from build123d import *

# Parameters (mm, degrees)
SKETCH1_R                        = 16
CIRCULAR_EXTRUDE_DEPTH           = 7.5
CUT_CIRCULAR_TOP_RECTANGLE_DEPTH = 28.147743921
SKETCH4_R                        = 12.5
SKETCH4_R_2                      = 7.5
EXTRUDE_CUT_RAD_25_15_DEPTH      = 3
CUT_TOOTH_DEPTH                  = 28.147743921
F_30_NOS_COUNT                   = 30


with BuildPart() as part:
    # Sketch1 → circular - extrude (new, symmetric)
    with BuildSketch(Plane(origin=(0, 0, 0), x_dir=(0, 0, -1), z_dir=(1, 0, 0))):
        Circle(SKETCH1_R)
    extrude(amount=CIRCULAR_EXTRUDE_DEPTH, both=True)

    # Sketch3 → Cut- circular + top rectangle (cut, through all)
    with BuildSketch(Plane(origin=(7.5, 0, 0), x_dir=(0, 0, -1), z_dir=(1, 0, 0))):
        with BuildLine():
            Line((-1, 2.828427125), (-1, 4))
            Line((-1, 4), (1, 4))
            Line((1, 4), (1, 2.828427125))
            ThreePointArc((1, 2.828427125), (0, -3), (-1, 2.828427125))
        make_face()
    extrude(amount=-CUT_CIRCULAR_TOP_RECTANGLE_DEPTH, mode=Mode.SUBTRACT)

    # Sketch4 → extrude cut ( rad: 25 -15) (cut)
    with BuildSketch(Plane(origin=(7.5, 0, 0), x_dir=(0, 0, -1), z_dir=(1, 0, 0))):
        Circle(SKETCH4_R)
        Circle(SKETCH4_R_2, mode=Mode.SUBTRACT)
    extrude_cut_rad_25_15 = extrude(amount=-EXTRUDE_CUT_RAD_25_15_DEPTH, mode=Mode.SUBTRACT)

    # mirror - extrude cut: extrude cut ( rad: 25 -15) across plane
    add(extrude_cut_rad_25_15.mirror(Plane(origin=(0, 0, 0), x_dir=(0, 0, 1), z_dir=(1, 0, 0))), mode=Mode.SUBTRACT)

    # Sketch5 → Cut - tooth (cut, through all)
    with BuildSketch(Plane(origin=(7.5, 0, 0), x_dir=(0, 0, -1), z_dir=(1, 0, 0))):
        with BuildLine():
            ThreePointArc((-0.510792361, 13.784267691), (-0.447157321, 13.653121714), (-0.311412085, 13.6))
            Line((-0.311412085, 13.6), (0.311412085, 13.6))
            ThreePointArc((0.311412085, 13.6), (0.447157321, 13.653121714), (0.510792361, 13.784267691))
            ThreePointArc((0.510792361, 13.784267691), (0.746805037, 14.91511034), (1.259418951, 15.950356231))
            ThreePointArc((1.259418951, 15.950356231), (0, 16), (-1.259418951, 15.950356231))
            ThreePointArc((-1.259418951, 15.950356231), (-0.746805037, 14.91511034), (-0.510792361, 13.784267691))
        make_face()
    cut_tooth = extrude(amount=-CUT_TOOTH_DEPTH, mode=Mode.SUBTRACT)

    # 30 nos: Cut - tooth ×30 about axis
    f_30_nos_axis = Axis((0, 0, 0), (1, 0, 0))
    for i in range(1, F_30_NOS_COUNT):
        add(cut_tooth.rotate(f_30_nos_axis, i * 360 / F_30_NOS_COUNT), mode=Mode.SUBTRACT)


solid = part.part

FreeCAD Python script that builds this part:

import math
import FreeCAD as App
import Part
import Sketcher

V = App.Vector
Q = App.Units.Quantity

doc = App.newDocument("Part")
body = doc.addObject("PartDesign::Body", "Body")

# Sketch on YZ plane
sketch1 = doc.addObject("Sketcher::SketchObject", "Sketch")
body.addObject(sketch1)
sketch1.AttachmentSupport = (doc.YZ_Plane, [""])
sketch1.MapMode = "FlatFace"
sketch1.addGeometry(Part.Circle(V(0, 0, 0), V(0, 0, 1), 16), False)
sketch1.addConstraint(Sketcher.Constraint("Coincident", 0, 3, -1, 1))
sketch1.addConstraint(Sketcher.Constraint("Diameter", 0, Q("32 mm")))
pad1 = doc.addObject("PartDesign::Pad", "Pad")
body.addObject(pad1)
pad1.Profile = sketch1
pad1.Length = 15
pad1.Midplane = True

# Sketch on YZ plane
sketch2 = doc.addObject("Sketcher::SketchObject", "Sketch001")
body.addObject(sketch2)
sketch2.AttachmentSupport = (doc.YZ_Plane, [""])
sketch2.MapMode = "FlatFace"
sketch2.AttachmentOffset = App.Placement(V(0, 0, 7.5), App.Rotation())
sketch2.addGeometry(Part.LineSegment(V(4, 1, 0), V(2.828427, 1, 0)), False)
sketch2.addGeometry(Part.ArcOfCircle(Part.Circle(V(0, 0, 0), V(0, 0, 1), 3), math.radians(19.471221), math.radians(340.528779)), False)
sketch2.addGeometry(Part.LineSegment(V(2.828427, -1, 0), V(4, -1, 0)), False)
sketch2.addGeometry(Part.LineSegment(V(4, -1, 0), V(4, 1, 0)), False)
sketch2.addConstraint(Sketcher.Constraint("Coincident", 0, 2, 1, 1))
sketch2.addConstraint(Sketcher.Constraint("Coincident", 1, 2, 2, 1))
sketch2.addConstraint(Sketcher.Constraint("Coincident", 2, 2, 3, 1))
sketch2.addConstraint(Sketcher.Constraint("Coincident", 3, 2, 0, 1))
sketch2.addConstraint(Sketcher.Constraint("Horizontal", 0))
sketch2.addConstraint(Sketcher.Constraint("Horizontal", 2))
sketch2.addConstraint(Sketcher.Constraint("Vertical", 3))
sketch2.addConstraint(Sketcher.Constraint("Coincident", 1, 3, -1, 1))
sketch2.addConstraint(Sketcher.Constraint("Vertical", 0, 2, 1, 2))
sketch2.addConstraint(Sketcher.Constraint("Radius", 1, Q("3 mm")))
sketch2.addConstraint(Sketcher.Constraint("DistanceY", 3, 1, 3, 2, Q("2 mm")))
sketch2.addConstraint(Sketcher.Constraint("DistanceX", -1, 1, 2, 2, Q("4 mm")))
pocket1 = doc.addObject("PartDesign::Pocket", "Pocket")
body.addObject(pocket1)
pocket1.Profile = sketch2
pocket1.Type = "ThroughAll"

# Sketch on YZ plane
sketch3 = doc.addObject("Sketcher::SketchObject", "Sketch002")
body.addObject(sketch3)
sketch3.AttachmentSupport = (doc.YZ_Plane, [""])
sketch3.MapMode = "FlatFace"
sketch3.AttachmentOffset = App.Placement(V(0, 0, 7.5), App.Rotation())
sketch3.addGeometry(Part.Circle(V(0, 0, 0), V(0, 0, 1), 12.5), False)
sketch3.addGeometry(Part.Circle(V(0, 0, 0), V(0, 0, 1), 7.5), False)
sketch3.addConstraint(Sketcher.Constraint("Coincident", 0, 3, -1, 1))
sketch3.addConstraint(Sketcher.Constraint("Coincident", 1, 3, -1, 1))
sketch3.addConstraint(Sketcher.Constraint("Diameter", 0, Q("25 mm")))
sketch3.addConstraint(Sketcher.Constraint("Diameter", 1, Q("15 mm")))
pocket2 = doc.addObject("PartDesign::Pocket", "Pocket001")
body.addObject(pocket2)
pocket2.Profile = sketch3
pocket2.Length = 3
doc.recompute()

mirrored = doc.addObject("PartDesign::Mirrored", "Mirrored")
body.addObject(mirrored)
mirrored.Originals = [pocket2]
mirrored.MirrorPlane = (doc.YZ_Plane, [""])
body.Tip = mirrored

# Sketch on YZ plane
sketch4 = doc.addObject("Sketcher::SketchObject", "Sketch003")
body.addObject(sketch4)
sketch4.AttachmentSupport = (doc.YZ_Plane, [""])
sketch4.MapMode = "FlatFace"
sketch4.AttachmentOffset = App.Placement(V(0, 0, 7.5), App.Rotation())
sketch4.addGeometry(Part.ArcOfCircle(Part.Circle(V(13.8, 0.311412, 0), V(0, 0, 1), 0.2), math.radians(94.511635), math.radians(180)), False)
sketch4.addGeometry(Part.LineSegment(V(13.6, 0.311412, 0), V(13.6, -0.311412, 0)), False)
sketch4.addGeometry(Part.ArcOfCircle(Part.Circle(V(13.8, -0.311412, 0), V(0, 0, 1), 0.2), math.radians(180), math.radians(265.488365)), False)
sketch4.addGeometry(Part.ArcOfCircle(Part.Circle(V(13.425571, -5.056663, 0), V(0, 0, 1), 4.56), math.radians(56.380089), math.radians(85.488364)), False)
sketch4.addGeometry(Part.ArcOfCircle(Part.Circle(V(0, 0, 0), V(0, 0, 1), 16), math.radians(-4.514632), math.radians(4.514632)), False)
sketch4.addGeometry(Part.ArcOfCircle(Part.Circle(V(13.425571, 5.056663, 0), V(0, 0, 1), 4.56), math.radians(-85.488364), math.radians(-56.380089)), False)
sketch4.addConstraint(Sketcher.Constraint("Tangent", 0, 2, 1, 1))
sketch4.addConstraint(Sketcher.Constraint("Tangent", 1, 2, 2, 1))
sketch4.addConstraint(Sketcher.Constraint("Tangent", 2, 2, 3, 2))
sketch4.addConstraint(Sketcher.Constraint("Coincident", 3, 1, 4, 1))
sketch4.addConstraint(Sketcher.Constraint("Coincident", 4, 2, 5, 2))
sketch4.addConstraint(Sketcher.Constraint("Tangent", 5, 1, 0, 1))
sketch4.addConstraint(Sketcher.Constraint("Vertical", 1))
sketch4.addConstraint(Sketcher.Constraint("Coincident", 4, 3, -1, 1))
sketch4.addConstraint(Sketcher.Constraint("Equal", 0, 2))
sketch4.addConstraint(Sketcher.Constraint("Equal", 3, 5))
sketch4.addConstraint(Sketcher.Constraint("Symmetric", 3, 3, 5, 3, -1))
sketch4.addConstraint(Sketcher.Constraint("Radius", 4, Q("16 mm")))
sketch4.addConstraint(Sketcher.Constraint("Radius", 0, Q("0.2 mm")))
sketch4.addConstraint(Sketcher.Constraint("Radius", 3, Q("4.56 mm")))
sketch4.addConstraint(Sketcher.Constraint("DistanceX", -1, 1, 0, 3, Q("13.8 mm")))
sketch4.addConstraint(Sketcher.Constraint("DistanceY", 1, 2, 1, 1, Q("0.622824 mm")))
sketch4.addConstraint(Sketcher.Constraint("DistanceX", -1, 1, 3, 3, Q("13.425571 mm")))
pocket3 = doc.addObject("PartDesign::Pocket", "Pocket002")
body.addObject(pocket3)
pocket3.Profile = sketch4
pocket3.Type = "ThroughAll"
doc.recompute()

polarpattern = doc.addObject("PartDesign::PolarPattern", "PolarPattern")
body.addObject(polarpattern)
polarpattern.Originals = [pocket3]
polarpattern.Axis = (doc.X_Axis, [""])
polarpattern.Angle = 360
polarpattern.Occurrences = 30
body.Tip = polarpattern

doc.recompute()
